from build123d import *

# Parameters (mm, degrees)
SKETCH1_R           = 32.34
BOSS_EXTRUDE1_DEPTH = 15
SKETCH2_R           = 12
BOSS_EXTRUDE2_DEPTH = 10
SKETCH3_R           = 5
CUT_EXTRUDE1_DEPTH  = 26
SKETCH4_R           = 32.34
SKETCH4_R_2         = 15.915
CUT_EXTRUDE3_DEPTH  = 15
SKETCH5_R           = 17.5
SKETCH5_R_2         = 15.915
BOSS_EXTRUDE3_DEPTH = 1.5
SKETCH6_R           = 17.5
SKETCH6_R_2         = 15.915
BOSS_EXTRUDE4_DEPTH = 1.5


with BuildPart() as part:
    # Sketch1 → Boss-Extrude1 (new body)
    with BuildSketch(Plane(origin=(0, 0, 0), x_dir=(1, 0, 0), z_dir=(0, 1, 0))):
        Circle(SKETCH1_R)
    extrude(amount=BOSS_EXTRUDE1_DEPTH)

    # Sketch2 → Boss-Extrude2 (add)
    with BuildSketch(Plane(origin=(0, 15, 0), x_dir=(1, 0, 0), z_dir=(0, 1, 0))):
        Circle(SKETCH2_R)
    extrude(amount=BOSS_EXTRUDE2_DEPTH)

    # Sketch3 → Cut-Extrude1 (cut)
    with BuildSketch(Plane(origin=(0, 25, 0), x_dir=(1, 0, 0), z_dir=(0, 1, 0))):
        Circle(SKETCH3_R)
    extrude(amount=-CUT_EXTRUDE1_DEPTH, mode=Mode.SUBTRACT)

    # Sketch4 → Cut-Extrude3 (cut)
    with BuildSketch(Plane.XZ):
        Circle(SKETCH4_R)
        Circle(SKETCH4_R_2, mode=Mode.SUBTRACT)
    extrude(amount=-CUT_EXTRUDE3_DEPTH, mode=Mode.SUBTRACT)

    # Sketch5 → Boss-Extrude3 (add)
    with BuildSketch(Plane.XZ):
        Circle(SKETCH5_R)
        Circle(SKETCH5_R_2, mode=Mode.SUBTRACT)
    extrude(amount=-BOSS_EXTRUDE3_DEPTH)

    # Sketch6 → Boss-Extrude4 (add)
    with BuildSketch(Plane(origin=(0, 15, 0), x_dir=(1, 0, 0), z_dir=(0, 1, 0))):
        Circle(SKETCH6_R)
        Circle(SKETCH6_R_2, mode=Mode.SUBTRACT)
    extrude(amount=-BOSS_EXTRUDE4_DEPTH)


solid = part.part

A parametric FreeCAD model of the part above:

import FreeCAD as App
import Part
import Sketcher

doc = App.newDocument("Part")
body = doc.addObject("PartDesign::Body", "Body")

sketch1 = body.newObject("Sketcher::SketchObject", "Sketch")
sketch1.AttachmentSupport = (doc.getObject("XZ_Plane"), [""])
sketch1.MapMode = "FlatFace"
sketch1.addGeometry(Part.Circle(App.Vector(0, 0, 0), App.Vector(0, 0, 1), 32), False)
sketch1.addConstraint([
    Sketcher.Constraint("Coincident", 0, 3, -1, 1),
    Sketcher.Constraint("Diameter", 0, 64.68),
])
pad1 = body.newObject("PartDesign::Pad", "Pad")
pad1.Profile = sketch1
pad1.Length = 15
pad1.Reversed = True

sketch2 = body.newObject("Sketcher::SketchObject", "Sketch001")
sketch2.AttachmentSupport = (doc.getObject("XZ_Plane"), [""])
sketch2.MapMode = "FlatFace"
sketch2.AttachmentOffset = App.Placement(App.Vector(0, 0, -15), App.Rotation())
sketch2.addGeometry(Part.Circle(App.Vector(0, 0, 0), App.Vector(0, 0, 1), 12), False)
sketch2.addConstraint([
    Sketcher.Constraint("Coincident", 0, 3, -1, 1),
    Sketcher.Constraint("Diameter", 0, 24.0),
])
pad2 = body.newObject("PartDesign::Pad", "Pad001")
pad2.Profile = sketch2
pad2.Length = 10
pad2.Reversed = True

sketch3 = body.newObject("Sketcher::SketchObject", "Sketch002")
sketch3.AttachmentSupport = (doc.getObject("XZ_Plane"), [""])
sketch3.MapMode = "FlatFace"
sketch3.AttachmentOffset = App.Placement(App.Vector(0, 0, -25), App.Rotation())
sketch3.addGeometry(Part.Circle(App.Vector(0, 0, 0), App.Vector(0, 0, 1), 5), False)
sketch3.addConstraint([
    Sketcher.Constraint("Coincident", 0, 3, -1, 1),
    Sketcher.Constraint("Diameter", 0, 10.0),
])
pocket1 = body.newObject("PartDesign::Pocket", "Pocket")
pocket1.Profile = sketch3
pocket1.Length = 26
pocket1.Reversed = True

sketch4 = body.newObject("Sketcher::SketchObject", "Sketch003")
sketch4.AttachmentSupport = (doc.getObject("XZ_Plane"), [""])
sketch4.MapMode = "FlatFace"
sketch4.addGeometry([
    Part.Circle(App.Vector(0, 0, 0), App.Vector(0, 0, 1), 32),
    Part.Circle(App.Vector(0, 0, 0), App.Vector(0, 0, 1), 16),
], False)
sketch4.addConstraint([
    Sketcher.Constraint("Coincident", 0, 3, -1, 1),
    Sketcher.Constraint("Coincident", 1, 3, -1, 1),
    Sketcher.Constraint("Diameter", 0, 64.68),
    Sketcher.Constraint("Diameter", 1, 31.83),
])
pocket2 = body.newObject("PartDesign::Pocket", "Pocket001")
pocket2.Profile = sketch4
pocket2.Length = 15

sketch5 = body.newObject("Sketcher::SketchObject", "Sketch004")
sketch5.AttachmentSupport = (doc.getObject("XZ_Plane"), [""])
sketch5.MapMode = "FlatFace"
sketch5.addGeometry([
    Part.Circle(App.Vector(0, 0, 0), App.Vector(0, 0, 1), 18),
    Part.Circle(App.Vector(0, 0, 0), App.Vector(0, 0, 1), 16),
], False)
sketch5.addConstraint([
    Sketcher.Constraint("Coincident", 0, 3, -1, 1),
    Sketcher.Constraint("Coincident", 1, 3, -1, 1),
    Sketcher.Constraint("Diameter", 0, 35.0),
    Sketcher.Constraint("Diameter", 1, 31.83),
])
pad3 = body.newObject("PartDesign::Pad", "Pad002")
pad3.Profile = sketch5
pad3.Length = 1.5
pad3.Reversed = True

sketch6 = body.newObject("Sketcher::SketchObject", "Sketch005")
sketch6.AttachmentSupport = (doc.getObject("XZ_Plane"), [""])
sketch6.MapMode = "FlatFace"
sketch6.AttachmentOffset = App.Placement(App.Vector(0, 0, -15), App.Rotation())
sketch6.addGeometry([
    Part.Circle(App.Vector(0, 0, 0), App.Vector(0, 0, 1), 18),
    Part.Circle(App.Vector(0, 0, 0), App.Vector(0, 0, 1), 16),
], False)
sketch6.addConstraint([
    Sketcher.Constraint("Coincident", 0, 3, -1, 1),
    Sketcher.Constraint("Coincident", 1, 3, -1, 1),
    Sketcher.Constraint("Diameter", 0, 35.0),
    Sketcher.Constraint("Diameter", 1, 31.83),
])
pad4 = body.newObject("PartDesign::Pad", "Pad003")
pad4.Profile = sketch6
pad4.Length = 1.5

doc.recompute()
